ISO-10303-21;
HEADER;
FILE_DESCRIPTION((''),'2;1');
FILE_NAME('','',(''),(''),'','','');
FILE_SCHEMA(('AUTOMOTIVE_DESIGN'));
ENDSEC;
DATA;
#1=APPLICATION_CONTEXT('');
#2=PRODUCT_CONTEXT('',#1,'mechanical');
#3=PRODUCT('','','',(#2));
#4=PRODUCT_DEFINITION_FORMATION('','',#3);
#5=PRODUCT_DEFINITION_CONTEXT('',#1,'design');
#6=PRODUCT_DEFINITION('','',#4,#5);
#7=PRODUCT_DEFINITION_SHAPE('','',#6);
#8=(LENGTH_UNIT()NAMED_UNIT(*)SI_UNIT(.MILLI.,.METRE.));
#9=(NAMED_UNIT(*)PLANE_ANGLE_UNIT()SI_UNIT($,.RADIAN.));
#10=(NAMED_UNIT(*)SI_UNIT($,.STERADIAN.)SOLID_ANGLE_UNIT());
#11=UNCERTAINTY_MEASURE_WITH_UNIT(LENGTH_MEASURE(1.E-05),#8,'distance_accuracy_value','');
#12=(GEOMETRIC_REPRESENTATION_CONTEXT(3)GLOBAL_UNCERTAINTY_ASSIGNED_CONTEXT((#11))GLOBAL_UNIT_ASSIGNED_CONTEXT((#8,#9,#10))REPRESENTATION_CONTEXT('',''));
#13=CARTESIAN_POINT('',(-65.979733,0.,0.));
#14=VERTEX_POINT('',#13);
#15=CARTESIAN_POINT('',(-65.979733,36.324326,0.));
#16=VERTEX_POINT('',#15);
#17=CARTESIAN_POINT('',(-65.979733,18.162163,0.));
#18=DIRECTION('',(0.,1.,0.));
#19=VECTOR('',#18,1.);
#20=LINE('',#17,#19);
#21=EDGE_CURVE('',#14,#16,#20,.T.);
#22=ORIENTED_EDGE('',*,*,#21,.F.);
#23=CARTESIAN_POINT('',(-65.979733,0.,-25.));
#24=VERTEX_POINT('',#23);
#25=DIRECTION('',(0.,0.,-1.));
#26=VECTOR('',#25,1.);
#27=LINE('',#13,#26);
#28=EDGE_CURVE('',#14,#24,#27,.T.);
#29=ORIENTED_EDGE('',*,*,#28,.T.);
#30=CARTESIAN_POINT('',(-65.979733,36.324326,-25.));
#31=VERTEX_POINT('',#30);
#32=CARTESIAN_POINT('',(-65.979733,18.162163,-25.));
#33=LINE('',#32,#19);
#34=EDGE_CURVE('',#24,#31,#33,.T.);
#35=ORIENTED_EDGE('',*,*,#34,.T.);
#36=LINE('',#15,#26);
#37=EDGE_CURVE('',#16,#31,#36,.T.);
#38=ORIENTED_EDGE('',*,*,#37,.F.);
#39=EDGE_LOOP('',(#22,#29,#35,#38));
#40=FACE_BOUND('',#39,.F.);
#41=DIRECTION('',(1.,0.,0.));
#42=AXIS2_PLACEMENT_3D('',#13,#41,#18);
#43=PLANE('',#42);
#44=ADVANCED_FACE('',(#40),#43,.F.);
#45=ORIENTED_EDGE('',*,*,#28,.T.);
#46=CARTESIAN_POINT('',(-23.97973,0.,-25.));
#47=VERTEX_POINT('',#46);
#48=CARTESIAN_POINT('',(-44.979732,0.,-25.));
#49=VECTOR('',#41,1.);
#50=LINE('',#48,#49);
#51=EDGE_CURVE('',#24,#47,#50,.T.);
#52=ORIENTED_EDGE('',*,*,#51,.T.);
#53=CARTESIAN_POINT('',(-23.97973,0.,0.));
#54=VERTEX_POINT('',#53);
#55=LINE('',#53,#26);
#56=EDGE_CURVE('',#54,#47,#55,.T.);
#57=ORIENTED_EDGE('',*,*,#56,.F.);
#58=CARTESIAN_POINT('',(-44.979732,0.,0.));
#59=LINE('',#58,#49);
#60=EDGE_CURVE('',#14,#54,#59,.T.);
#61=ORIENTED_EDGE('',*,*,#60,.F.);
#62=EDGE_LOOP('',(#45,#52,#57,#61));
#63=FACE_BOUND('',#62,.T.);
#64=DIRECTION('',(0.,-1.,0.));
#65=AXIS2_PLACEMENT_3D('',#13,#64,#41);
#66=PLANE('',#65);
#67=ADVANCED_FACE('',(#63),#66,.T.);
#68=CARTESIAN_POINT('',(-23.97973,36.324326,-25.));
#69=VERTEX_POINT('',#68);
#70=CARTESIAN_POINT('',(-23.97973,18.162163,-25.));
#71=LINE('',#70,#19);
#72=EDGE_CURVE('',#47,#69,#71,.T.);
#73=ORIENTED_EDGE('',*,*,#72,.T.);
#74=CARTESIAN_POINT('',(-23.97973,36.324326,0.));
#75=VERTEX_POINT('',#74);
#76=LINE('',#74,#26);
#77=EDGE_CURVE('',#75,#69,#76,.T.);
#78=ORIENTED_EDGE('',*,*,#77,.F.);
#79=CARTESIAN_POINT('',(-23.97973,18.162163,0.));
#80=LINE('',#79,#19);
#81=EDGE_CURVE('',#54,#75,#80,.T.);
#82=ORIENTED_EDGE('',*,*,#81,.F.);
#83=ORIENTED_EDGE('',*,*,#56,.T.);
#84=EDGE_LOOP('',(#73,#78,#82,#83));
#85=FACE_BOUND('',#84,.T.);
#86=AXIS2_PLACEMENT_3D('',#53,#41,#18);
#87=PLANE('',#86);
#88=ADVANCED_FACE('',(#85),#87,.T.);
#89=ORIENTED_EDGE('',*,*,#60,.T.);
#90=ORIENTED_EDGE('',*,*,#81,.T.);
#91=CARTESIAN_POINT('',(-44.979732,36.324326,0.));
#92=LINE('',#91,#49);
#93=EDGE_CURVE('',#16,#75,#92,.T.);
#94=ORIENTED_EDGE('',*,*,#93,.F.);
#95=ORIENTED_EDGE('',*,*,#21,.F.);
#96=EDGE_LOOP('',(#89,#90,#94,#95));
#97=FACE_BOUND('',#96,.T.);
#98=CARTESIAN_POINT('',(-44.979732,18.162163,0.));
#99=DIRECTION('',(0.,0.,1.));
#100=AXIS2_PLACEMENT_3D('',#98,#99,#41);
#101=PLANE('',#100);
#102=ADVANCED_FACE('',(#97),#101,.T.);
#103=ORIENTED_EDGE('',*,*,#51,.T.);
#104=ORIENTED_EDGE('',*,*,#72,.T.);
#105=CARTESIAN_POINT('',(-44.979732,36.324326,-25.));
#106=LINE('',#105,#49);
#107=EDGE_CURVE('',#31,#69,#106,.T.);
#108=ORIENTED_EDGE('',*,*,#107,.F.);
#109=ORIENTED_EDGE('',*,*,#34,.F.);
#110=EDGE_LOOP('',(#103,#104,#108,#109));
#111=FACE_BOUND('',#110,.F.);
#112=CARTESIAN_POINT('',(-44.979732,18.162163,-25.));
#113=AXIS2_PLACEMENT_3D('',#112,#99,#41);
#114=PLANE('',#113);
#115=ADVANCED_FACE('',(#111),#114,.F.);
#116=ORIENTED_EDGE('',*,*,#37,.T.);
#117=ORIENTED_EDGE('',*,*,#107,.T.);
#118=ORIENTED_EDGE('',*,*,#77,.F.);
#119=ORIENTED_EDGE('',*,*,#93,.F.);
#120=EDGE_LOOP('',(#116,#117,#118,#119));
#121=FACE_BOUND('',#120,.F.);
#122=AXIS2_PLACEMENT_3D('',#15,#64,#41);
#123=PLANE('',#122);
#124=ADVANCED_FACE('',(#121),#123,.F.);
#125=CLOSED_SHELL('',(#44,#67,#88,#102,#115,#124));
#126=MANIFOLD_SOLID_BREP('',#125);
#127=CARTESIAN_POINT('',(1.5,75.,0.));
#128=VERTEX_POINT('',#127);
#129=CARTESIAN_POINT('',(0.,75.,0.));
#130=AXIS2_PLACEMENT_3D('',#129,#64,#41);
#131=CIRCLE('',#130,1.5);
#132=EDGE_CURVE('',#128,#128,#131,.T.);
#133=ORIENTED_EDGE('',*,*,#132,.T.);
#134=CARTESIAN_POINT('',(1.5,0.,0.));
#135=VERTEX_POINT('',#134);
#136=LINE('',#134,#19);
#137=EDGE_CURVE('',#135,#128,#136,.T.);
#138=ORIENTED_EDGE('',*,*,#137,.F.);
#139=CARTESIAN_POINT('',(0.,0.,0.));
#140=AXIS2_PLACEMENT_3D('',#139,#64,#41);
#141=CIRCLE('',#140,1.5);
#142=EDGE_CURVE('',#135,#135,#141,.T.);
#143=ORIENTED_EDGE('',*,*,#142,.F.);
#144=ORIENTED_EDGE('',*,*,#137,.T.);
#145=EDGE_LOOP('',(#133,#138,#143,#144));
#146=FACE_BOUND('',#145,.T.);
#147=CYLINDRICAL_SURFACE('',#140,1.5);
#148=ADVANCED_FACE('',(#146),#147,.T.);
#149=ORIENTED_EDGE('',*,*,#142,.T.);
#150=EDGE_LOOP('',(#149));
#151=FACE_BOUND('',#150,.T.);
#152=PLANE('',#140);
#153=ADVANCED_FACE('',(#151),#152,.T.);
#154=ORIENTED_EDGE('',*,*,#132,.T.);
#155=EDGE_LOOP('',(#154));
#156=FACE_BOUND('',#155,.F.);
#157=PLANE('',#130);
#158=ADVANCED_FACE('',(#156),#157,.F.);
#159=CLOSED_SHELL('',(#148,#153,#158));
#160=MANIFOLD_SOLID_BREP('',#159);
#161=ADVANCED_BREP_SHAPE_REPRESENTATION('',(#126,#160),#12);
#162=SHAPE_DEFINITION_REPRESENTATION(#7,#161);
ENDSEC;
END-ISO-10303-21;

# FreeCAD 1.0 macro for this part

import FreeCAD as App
import Part
import Sketcher
from FreeCAD import Vector


def add_polygon(sketch, points):
    """Adds a closed chain of lines whose ends are joined by coincident constraints."""
    first, n = sketch.GeometryCount, len(points)
    for a, b in zip(points, points[1:] + points[:1]):
        sketch.addGeometry(Part.LineSegment(App.Vector(*a, 0), App.Vector(*b, 0)), False)
    for i in range(n):
        sketch.addConstraint(Sketcher.Constraint("Coincident", first + i, 2, first + (i + 1) % n, 1))

doc = App.newDocument("Part")
body = doc.addObject("PartDesign::Body", "Body")

sketch1 = doc.addObject("Sketcher::SketchObject", "Sketch")
body.addObject(sketch1)
sketch1.AttachmentSupport = (doc.XZ_Plane, [""])
sketch1.MapMode = "FlatFace"
sketch1.addGeometry(Part.Circle(Vector(0, 0, 0), Vector(0, 0, 1), 1.5), False)
sketch1.addConstraint(Sketcher.Constraint("Coincident", 0, 3, -1, 1))
sketch1.addConstraint(Sketcher.Constraint("Diameter", 0, 3.0))
pad1 = doc.addObject("PartDesign::Pad", "Pad")
body.addObject(pad1)
pad1.Profile = sketch1
pad1.Length = 75
pad1.Reversed = True
body2 = doc.addObject("PartDesign::Body", "Body001")

sketch2 = doc.addObject("Sketcher::SketchObject", "Sketch001")
body2.addObject(sketch2)
sketch2.AttachmentSupport = (doc.getObject("XY_Plane001"), [""])
sketch2.MapMode = "FlatFace"
add_polygon(sketch2, [(-66, 36), (-66, 0), (-24, 0), (-24, 36)])
sketch2.addConstraint(Sketcher.Constraint("Vertical", 0))
sketch2.addConstraint(Sketcher.Constraint("Horizontal", 1))
sketch2.addConstraint(Sketcher.Constraint("Vertical", 2))
sketch2.addConstraint(Sketcher.Constraint("Horizontal", 3))
sketch2.addConstraint(Sketcher.Constraint("PointOnObject", 0, 2, -1))
sketch2.addConstraint(Sketcher.Constraint("DistanceX", 1, 1, 1, 2, 42.000003))
sketch2.addConstraint(Sketcher.Constraint("DistanceY", 0, 2, 0, 1, 36.324326))
sketch2.addConstraint(Sketcher.Constraint("DistanceX", 1, 2, -1, 1, 23.97973))
pad2 = doc.addObject("PartDesign::Pad", "Pad001")
body2.addObject(pad2)
pad2.Profile = sketch2
pad2.Length = 25
pad2.Reversed = True

doc.recompute()
